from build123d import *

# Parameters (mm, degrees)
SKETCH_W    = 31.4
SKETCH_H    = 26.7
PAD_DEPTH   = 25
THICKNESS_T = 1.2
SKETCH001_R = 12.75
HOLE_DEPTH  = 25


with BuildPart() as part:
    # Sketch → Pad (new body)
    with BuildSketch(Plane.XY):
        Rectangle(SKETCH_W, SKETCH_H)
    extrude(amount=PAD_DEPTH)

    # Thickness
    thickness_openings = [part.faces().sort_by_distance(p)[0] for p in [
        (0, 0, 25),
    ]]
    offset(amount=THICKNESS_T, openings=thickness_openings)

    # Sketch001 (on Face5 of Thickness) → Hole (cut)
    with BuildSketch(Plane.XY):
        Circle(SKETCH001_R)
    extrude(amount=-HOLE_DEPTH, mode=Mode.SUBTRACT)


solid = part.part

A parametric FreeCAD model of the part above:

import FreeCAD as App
import Part
import Sketcher
Q = App.Units.Quantity


def faces_at(feature, points):
    """Names of the faces that lie closest to the given points."""
    faces = feature.Shape.Faces
    near = lambda p: min(range(len(faces)), key=lambda i: faces[i].distToShape(Part.Vertex(*p))[0])
    return sorted({f"Face{near(p) + 1}" for p in points})


def add_polygon(sketch, points):
    """Adds a closed chain of lines whose ends are joined by coincident constraints."""
    first, n = sketch.GeometryCount, len(points)
    for a, b in zip(points, points[1:] + points[:1]):
        sketch.addGeometry(Part.LineSegment(App.Vector(*a, 0), App.Vector(*b, 0)), False)
    for i in range(n):
        sketch.addConstraint(Sketcher.Constraint("Coincident", first + i, 2, first + (i + 1) % n, 1))

doc = App.newDocument("Part")
params = doc.addObject("Spreadsheet::Sheet", "Params")
for row, (alias, value) in enumerate([
    ("sketch1_width", "31.4 mm"),
    ("sketch1_height", "26.7 mm"),
    ("pad1_length", "25 mm"),
    ("thickness_wall", "1.2 mm"),
    ("sketch2_diameter", "25.5 mm"),
    ("pocket1_length", "25 mm"),
], start=1):
    params.set(f"A{row}", alias)
    params.set(f"B{row}", "=" + value)
    params.setAlias(f"B{row}", alias)

body = doc.addObject("PartDesign::Body", "Body")

# Sketch on XY plane
sketch1 = body.newObject("Sketcher::SketchObject", "Sketch")
sketch1.AttachmentSupport = (doc.getObject("XY_Plane"), [""])
sketch1.MapMode = "FlatFace"
add_polygon(sketch1, [(-16, 13), (-16, -13), (16, -13), (16, 13)])  # lines 0-3
sketch1.addConstraint([
    Sketcher.Constraint("Vertical", 0),
    Sketcher.Constraint("Horizontal", 1),
    Sketcher.Constraint("Vertical", 2),
    Sketcher.Constraint("Horizontal", 3),
    Sketcher.Constraint("Symmetric", 0, 2, 2, 2, -1, 1),
    Sketcher.Constraint("DistanceX", 1, 1, 1, 2, Q("31.4 mm")),
    Sketcher.Constraint("DistanceY", 0, 2, 0, 1, Q("26.7 mm")),
])
sketch1.setExpression("Constraints[9]", "Params.sketch1_width")
sketch1.setExpression("Constraints[10]", "Params.sketch1_height")
pad1 = body.newObject("PartDesign::Pad", "Pad")
pad1.Profile = sketch1
pad1.setExpression("Length", "Params.pad1_length")
doc.recompute()

thickness = body.newObject("PartDesign::Thickness", "Thickness")
thickness.Base = (pad1, faces_at(pad1, [(0, 0, 25)]))
thickness.setExpression("Value", "Params.thickness_wall")
thickness.Reversed = False
thickness.Join = "Arc"

# Sketch on XY plane
sketch2 = body.newObject("Sketcher::SketchObject", "Sketch001")
sketch2.AttachmentSupport = (doc.getObject("XY_Plane"), [""])
sketch2.MapMode = "FlatFace"
sketch2.addGeometry(Part.Circle(App.Vector(0, 0, 0), App.Vector(0, 0, 1), 13), False)
sketch2.addConstraint([
    Sketcher.Constraint("Coincident", 0, 3, -1, 1),
    Sketcher.Constraint("Diameter", 0, Q("25.5 mm")),
])
sketch2.setExpression("Constraints[1]", "Params.sketch2_diameter")
pocket1 = body.newObject("PartDesign::Pocket", "Pocket")
pocket1.Profile = sketch2
pocket1.setExpression("Length", "Params.pocket1_length")

doc.recompute()
